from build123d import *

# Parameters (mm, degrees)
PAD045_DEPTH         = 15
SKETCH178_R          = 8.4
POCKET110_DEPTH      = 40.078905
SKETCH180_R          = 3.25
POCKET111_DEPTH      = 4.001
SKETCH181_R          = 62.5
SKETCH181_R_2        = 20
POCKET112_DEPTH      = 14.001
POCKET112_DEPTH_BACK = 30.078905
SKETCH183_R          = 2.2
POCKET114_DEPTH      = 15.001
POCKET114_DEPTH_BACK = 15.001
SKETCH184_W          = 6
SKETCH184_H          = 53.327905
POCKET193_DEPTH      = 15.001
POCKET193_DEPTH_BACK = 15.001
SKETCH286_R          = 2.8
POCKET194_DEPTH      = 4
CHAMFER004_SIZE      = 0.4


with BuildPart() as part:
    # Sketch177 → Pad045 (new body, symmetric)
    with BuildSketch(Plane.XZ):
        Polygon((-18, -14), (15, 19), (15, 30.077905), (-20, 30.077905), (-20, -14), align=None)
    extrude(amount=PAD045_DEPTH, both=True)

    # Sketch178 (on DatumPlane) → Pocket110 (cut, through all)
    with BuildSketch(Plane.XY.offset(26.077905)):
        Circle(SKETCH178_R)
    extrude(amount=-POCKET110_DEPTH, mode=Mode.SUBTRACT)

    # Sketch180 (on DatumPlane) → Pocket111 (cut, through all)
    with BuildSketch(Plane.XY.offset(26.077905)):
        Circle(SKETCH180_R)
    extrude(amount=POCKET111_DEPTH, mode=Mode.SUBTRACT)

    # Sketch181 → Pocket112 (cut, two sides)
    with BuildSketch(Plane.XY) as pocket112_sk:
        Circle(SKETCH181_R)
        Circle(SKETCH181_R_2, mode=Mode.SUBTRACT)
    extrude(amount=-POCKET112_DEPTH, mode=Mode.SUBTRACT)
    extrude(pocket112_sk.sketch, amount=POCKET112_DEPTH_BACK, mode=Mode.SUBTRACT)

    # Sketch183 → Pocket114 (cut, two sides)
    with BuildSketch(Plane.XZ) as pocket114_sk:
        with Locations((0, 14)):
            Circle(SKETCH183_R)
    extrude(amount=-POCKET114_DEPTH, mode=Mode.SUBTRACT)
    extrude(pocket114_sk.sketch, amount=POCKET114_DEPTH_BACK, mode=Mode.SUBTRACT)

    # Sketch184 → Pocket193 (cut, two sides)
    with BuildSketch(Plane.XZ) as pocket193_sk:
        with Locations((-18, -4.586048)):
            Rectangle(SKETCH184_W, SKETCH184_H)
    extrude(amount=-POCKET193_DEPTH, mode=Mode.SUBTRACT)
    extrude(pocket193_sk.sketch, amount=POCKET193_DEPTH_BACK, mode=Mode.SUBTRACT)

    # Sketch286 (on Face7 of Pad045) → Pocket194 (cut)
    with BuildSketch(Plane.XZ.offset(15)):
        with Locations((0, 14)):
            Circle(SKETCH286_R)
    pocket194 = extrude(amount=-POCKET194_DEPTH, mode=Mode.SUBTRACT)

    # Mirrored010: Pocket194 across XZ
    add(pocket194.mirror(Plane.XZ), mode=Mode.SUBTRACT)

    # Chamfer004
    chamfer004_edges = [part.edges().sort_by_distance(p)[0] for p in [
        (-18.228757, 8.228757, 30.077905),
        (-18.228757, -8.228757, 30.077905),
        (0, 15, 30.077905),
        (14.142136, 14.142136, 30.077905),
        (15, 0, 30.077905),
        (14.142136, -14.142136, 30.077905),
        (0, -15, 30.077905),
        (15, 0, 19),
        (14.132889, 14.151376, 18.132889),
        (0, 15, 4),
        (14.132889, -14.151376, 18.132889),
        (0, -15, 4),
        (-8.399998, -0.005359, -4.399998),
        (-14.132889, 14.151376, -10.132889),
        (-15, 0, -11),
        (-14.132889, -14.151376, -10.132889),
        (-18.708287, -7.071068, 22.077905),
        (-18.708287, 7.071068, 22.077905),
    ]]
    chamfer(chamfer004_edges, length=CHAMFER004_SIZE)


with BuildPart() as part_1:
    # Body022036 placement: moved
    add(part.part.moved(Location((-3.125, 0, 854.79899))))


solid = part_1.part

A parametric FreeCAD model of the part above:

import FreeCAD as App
import Part
import Sketcher
from FreeCAD import Vector
Q = App.Units.Quantity


def edges_at(feature, points):
    """Names of the edges that pass closest to the given points."""
    edges = feature.Shape.Edges
    near = lambda p: min(range(len(edges)), key=lambda i: edges[i].distToShape(Part.Vertex(*p))[0])
    return sorted({f"Edge{near(p) + 1}" for p in points})

doc = App.newDocument("Part")
params = doc.addObject("Spreadsheet::Sheet", "Params")
for row, (alias, value) in enumerate([
    ("sketch1_width", "35 mm"),
    ("sketch1_width2", "2 mm"),
    ("pad1_length", "30 mm"),
    ("sketch2_diameter", "16.8 mm"),
    ("sketch3_diameter", "6.5 mm"),
    ("sketch4_diameter", "125 mm"),
    ("sketch4_diameter2", "40 mm"),
    ("sketch5_diameter", "4.4 mm"),
    ("sketch6_width", "6 mm"),
    ("sketch7_diameter", "5.6 mm"),
    ("pocket6_length", "4 mm"),
    ("chamfer_size", "0.4 mm"),
], start=1):
    params.set(f"A{row}", alias)
    params.set(f"B{row}", "=" + value)
    params.setAlias(f"B{row}", alias)

body = doc.addObject("PartDesign::Body", "Body")

sketch1 = body.newObject("Sketcher::SketchObject", "Sketch")
sketch1.AttachmentSupport = (doc.getObject("XZ_Plane"), [""])
sketch1.MapMode = "FlatFace"
sketch1.addGeometry([
    Part.LineSegment(Vector(-18, -14, 0), Vector(15, 19, 0)),
    Part.LineSegment(Vector(15, 19, 0), Vector(15, 30.1, 0)),
    Part.LineSegment(Vector(15, 30.1, 0), Vector(-20, 30.1, 0)),
    Part.LineSegment(Vector(-20, 30.1, 0), Vector(-20, -14, 0)),
    Part.LineSegment(Vector(-20, -14, 0), Vector(-18, -14, 0)),
], False)
sketch1.addConstraint([
    Sketcher.Constraint("Coincident", 0, 2, 1, 1),
    Sketcher.Constraint("Coincident", 1, 2, 2, 1),
    Sketcher.Constraint("Coincident", 2, 2, 3, 1),
    Sketcher.Constraint("Coincident", 3, 2, 4, 1),
    Sketcher.Constraint("Coincident", 4, 2, 0, 1),
    Sketcher.Constraint("Vertical", 1),
    Sketcher.Constraint("Horizontal", 2),
    Sketcher.Constraint("Vertical", 3),
    Sketcher.Constraint("Horizontal", 4),
    Sketcher.Constraint("DistanceX", 2, 2, 2, 1, Q("35 mm")),
    Sketcher.Constraint("DistanceX", 4, 1, 4, 2, Q("2 mm")),
    Sketcher.Constraint("Angle", 0, Q("45 deg")),
    Sketcher.Constraint("DistanceX", -1, 1, 0, 2, Q("15 mm")),
    Sketcher.Constraint("DistanceY", -1, 1, 0, 2, Q("19 mm")),
    Sketcher.Constraint("DistanceY", 1, 1, 1, 2, Q("11.077905 mm")),
])
sketch1.setExpression("Constraints[9]", "Params.sketch1_width")
sketch1.setExpression("Constraints[10]", "Params.sketch1_width2")
pad1 = body.newObject("PartDesign::Pad", "Pad")
pad1.Profile = sketch1
pad1.setExpression("Length", "Params.pad1_length")
pad1.Midplane = True

sketch2 = body.newObject("Sketcher::SketchObject", "Sketch001")
sketch2.AttachmentSupport = (doc.getObject("XY_Plane"), [""])
sketch2.MapMode = "FlatFace"
sketch2.AttachmentOffset = App.Placement(Vector(0, 0, 26.077905), App.Rotation())
sketch2.addGeometry(Part.Circle(Vector(0, 0, 0), Vector(0, 0, 1), 8), False)
sketch2.addConstraint([
    Sketcher.Constraint("Coincident", 0, 3, -1, 1),
    Sketcher.Constraint("Diameter", 0, Q("16.8 mm")),
])
sketch2.setExpression("Constraints[1]", "Params.sketch2_diameter")
pocket1 = body.newObject("PartDesign::Pocket", "Pocket")
pocket1.Profile = sketch2
pocket1.Type = "ThroughAll"

sketch3 = body.newObject("Sketcher::SketchObject", "Sketch002")
sketch3.AttachmentSupport = (doc.getObject("XY_Plane"), [""])
sketch3.MapMode = "FlatFace"
sketch3.AttachmentOffset = App.Placement(Vector(0, 0, 26.077905), App.Rotation())
sketch3.addGeometry(Part.Circle(Vector(0, 0, 0), Vector(0, 0, 1), 3.2), False)
sketch3.addConstraint([
    Sketcher.Constraint("Coincident", 0, 3, -1, 1),
    Sketcher.Constraint("Diameter", 0, Q("6.5 mm")),
])
sketch3.setExpression("Constraints[1]", "Params.sketch3_diameter")
pocket2 = body.newObject("PartDesign::Pocket", "Pocket001")
pocket2.Profile = sketch3
pocket2.Type = "ThroughAll"
pocket2.Reversed = True

sketch4 = body.newObject("Sketcher::SketchObject", "Sketch003")
sketch4.AttachmentSupport = (doc.getObject("XY_Plane"), [""])
sketch4.MapMode = "FlatFace"
sketch4.addGeometry([
    Part.Circle(Vector(0, 0, 0), Vector(0, 0, 1), 62),
    Part.Circle(Vector(0, 0, 0), Vector(0, 0, 1), 20),
], False)
sketch4.addConstraint([
    Sketcher.Constraint("Coincident", 0, 3, -1, 1),
    Sketcher.Constraint("Coincident", 1, 3, -1, 1),
    Sketcher.Constraint("Diameter", 0, Q("125 mm")),
    Sketcher.Constraint("Diameter", 1, Q("40 mm")),
])
sketch4.setExpression("Constraints[2]", "Params.sketch4_diameter")
sketch4.setExpression("Constraints[3]", "Params.sketch4_diameter2")
pocket3 = body.newObject("PartDesign::Pocket", "Pocket002")
pocket3.Profile = sketch4
pocket3.Type = "ThroughAll"
pocket3.Midplane = True

sketch5 = body.newObject("Sketcher::SketchObject", "Sketch004")
sketch5.AttachmentSupport = (doc.getObject("XZ_Plane"), [""])
sketch5.MapMode = "FlatFace"
sketch5.addGeometry(Part.Circle(Vector(0, 14, 0), Vector(0, 0, 1), 2.2), False)
sketch5.addConstraint([
    Sketcher.Constraint("PointOnObject", 0, 3, -2),
    Sketcher.Constraint("Diameter", 0, Q("4.4 mm")),
    Sketcher.Constraint("DistanceY", -1, 1, 0, 3, Q("14 mm")),
])
sketch5.setExpression("Constraints[1]", "Params.sketch5_diameter")
pocket4 = body.newObject("PartDesign::Pocket", "Pocket003")
pocket4.Profile = sketch5
pocket4.Type = "ThroughAll"
pocket4.Midplane = True

sketch6 = body.newObject("Sketcher::SketchObject", "Sketch005")
sketch6.AttachmentSupport = (doc.getObject("XZ_Plane"), [""])
sketch6.MapMode = "FlatFace"
sketch6.addGeometry([
    Part.LineSegment(Vector(-21, 22, 0), Vector(-21, -31, 0)),
    Part.LineSegment(Vector(-21, -31, 0), Vector(-15, -31, 0)),
    Part.LineSegment(Vector(-15, -31, 0), Vector(-15, 22, 0)),
    Part.LineSegment(Vector(-15, 22, 0), Vector(-21, 22, 0)),
], False)
sketch6.addConstraint([
    Sketcher.Constraint("Coincident", 0, 2, 1, 1),
    Sketcher.Constraint("Coincident", 1, 2, 2, 1),
    Sketcher.Constraint("Coincident", 2, 2, 3, 1),
    Sketcher.Constraint("Coincident", 3, 2, 0, 1),
    Sketcher.Constraint("Vertical", 0),
    Sketcher.Constraint("Horizontal", 1),
    Sketcher.Constraint("Vertical", 2),
    Sketcher.Constraint("Horizontal", 3),
    Sketcher.Constraint("DistanceX", 1, 1, 1, 2, Q("6 mm")),
    Sketcher.Constraint("DistanceX", 0, 2, -1, 1, Q("21 mm")),
    Sketcher.Constraint("DistanceY", 0, 2, -1, 1, Q("31.25 mm")),
    Sketcher.Constraint("DistanceY", 0, 2, 0, 1, Q("53.327905 mm")),
])
sketch6.setExpression("Constraints[8]", "Params.sketch6_width")
pocket5 = body.newObject("PartDesign::Pocket", "Pocket004")
pocket5.Profile = sketch6
pocket5.Type = "ThroughAll"
pocket5.Midplane = True

sketch7 = body.newObject("Sketcher::SketchObject", "Sketch006")
sketch7.AttachmentSupport = (doc.getObject("XZ_Plane"), [""])
sketch7.MapMode = "FlatFace"
sketch7.AttachmentOffset = App.Placement(Vector(0, 0, 15), App.Rotation())
sketch7.addGeometry(Part.Circle(Vector(0, 14, 0), Vector(0, 0, 1), 2.8), False)
sketch7.addConstraint([
    Sketcher.Constraint("PointOnObject", 0, 3, -2),
    Sketcher.Constraint("Diameter", 0, Q("5.6 mm")),
    Sketcher.Constraint("DistanceY", -1, 1, 0, 3, Q("14 mm")),
])
sketch7.setExpression("Constraints[1]", "Params.sketch7_diameter")
pocket6 = body.newObject("PartDesign::Pocket", "Pocket005")
pocket6.Profile = sketch7
pocket6.setExpression("Length", "Params.pocket6_length")
doc.recompute()

mirrored = body.newObject("PartDesign::Mirrored", "Mirrored")
mirrored.Originals = [pocket6]
mirrored.MirrorPlane = (doc.getObject("XZ_Plane"), [""])
body.Tip = mirrored
doc.recompute()

chamfer = body.newObject("PartDesign::Chamfer", "Chamfer")
chamfer.Base = (mirrored, edges_at(mirrored, [
    (-20, 0, 30.078),
    (-20, 0, 30.078),
    (0, 15, 30.078),
    (14.142, 14.142, 30.078),
    (15, 0, 30.078),
    (14.142, -14.142, 30.078),
    (0, -15, 30.078),
    (15, 0, 19),
    (14.133, 14.151, 18.133),
    (0, 15, 4),
    (14.133, -14.151, 18.133),
    (0, -15, 4),
    (-8.4, 0.005, -4.4),
    (-14.133, 14.151, -10.133),
    (-15, 0, -11),
    (-14.133, -14.151, -10.133),
    (-20, 0, 22.078),
    (-20, 0, 22.078),
]))
chamfer.setExpression("Size", "Params.chamfer_size")
body2 = doc.addObject("PartDesign::Body", "Body001")
doc.recompute()

body.Placement = App.Placement(Vector(-3.125, 0, 854.79899), App.Rotation(Vector(0, 0, 1), 0))
boolean = body2.newObject("PartDesign::Boolean", "Boolean")
boolean.Type = "Fuse"
boolean.addObjects([body])

doc.recompute()
